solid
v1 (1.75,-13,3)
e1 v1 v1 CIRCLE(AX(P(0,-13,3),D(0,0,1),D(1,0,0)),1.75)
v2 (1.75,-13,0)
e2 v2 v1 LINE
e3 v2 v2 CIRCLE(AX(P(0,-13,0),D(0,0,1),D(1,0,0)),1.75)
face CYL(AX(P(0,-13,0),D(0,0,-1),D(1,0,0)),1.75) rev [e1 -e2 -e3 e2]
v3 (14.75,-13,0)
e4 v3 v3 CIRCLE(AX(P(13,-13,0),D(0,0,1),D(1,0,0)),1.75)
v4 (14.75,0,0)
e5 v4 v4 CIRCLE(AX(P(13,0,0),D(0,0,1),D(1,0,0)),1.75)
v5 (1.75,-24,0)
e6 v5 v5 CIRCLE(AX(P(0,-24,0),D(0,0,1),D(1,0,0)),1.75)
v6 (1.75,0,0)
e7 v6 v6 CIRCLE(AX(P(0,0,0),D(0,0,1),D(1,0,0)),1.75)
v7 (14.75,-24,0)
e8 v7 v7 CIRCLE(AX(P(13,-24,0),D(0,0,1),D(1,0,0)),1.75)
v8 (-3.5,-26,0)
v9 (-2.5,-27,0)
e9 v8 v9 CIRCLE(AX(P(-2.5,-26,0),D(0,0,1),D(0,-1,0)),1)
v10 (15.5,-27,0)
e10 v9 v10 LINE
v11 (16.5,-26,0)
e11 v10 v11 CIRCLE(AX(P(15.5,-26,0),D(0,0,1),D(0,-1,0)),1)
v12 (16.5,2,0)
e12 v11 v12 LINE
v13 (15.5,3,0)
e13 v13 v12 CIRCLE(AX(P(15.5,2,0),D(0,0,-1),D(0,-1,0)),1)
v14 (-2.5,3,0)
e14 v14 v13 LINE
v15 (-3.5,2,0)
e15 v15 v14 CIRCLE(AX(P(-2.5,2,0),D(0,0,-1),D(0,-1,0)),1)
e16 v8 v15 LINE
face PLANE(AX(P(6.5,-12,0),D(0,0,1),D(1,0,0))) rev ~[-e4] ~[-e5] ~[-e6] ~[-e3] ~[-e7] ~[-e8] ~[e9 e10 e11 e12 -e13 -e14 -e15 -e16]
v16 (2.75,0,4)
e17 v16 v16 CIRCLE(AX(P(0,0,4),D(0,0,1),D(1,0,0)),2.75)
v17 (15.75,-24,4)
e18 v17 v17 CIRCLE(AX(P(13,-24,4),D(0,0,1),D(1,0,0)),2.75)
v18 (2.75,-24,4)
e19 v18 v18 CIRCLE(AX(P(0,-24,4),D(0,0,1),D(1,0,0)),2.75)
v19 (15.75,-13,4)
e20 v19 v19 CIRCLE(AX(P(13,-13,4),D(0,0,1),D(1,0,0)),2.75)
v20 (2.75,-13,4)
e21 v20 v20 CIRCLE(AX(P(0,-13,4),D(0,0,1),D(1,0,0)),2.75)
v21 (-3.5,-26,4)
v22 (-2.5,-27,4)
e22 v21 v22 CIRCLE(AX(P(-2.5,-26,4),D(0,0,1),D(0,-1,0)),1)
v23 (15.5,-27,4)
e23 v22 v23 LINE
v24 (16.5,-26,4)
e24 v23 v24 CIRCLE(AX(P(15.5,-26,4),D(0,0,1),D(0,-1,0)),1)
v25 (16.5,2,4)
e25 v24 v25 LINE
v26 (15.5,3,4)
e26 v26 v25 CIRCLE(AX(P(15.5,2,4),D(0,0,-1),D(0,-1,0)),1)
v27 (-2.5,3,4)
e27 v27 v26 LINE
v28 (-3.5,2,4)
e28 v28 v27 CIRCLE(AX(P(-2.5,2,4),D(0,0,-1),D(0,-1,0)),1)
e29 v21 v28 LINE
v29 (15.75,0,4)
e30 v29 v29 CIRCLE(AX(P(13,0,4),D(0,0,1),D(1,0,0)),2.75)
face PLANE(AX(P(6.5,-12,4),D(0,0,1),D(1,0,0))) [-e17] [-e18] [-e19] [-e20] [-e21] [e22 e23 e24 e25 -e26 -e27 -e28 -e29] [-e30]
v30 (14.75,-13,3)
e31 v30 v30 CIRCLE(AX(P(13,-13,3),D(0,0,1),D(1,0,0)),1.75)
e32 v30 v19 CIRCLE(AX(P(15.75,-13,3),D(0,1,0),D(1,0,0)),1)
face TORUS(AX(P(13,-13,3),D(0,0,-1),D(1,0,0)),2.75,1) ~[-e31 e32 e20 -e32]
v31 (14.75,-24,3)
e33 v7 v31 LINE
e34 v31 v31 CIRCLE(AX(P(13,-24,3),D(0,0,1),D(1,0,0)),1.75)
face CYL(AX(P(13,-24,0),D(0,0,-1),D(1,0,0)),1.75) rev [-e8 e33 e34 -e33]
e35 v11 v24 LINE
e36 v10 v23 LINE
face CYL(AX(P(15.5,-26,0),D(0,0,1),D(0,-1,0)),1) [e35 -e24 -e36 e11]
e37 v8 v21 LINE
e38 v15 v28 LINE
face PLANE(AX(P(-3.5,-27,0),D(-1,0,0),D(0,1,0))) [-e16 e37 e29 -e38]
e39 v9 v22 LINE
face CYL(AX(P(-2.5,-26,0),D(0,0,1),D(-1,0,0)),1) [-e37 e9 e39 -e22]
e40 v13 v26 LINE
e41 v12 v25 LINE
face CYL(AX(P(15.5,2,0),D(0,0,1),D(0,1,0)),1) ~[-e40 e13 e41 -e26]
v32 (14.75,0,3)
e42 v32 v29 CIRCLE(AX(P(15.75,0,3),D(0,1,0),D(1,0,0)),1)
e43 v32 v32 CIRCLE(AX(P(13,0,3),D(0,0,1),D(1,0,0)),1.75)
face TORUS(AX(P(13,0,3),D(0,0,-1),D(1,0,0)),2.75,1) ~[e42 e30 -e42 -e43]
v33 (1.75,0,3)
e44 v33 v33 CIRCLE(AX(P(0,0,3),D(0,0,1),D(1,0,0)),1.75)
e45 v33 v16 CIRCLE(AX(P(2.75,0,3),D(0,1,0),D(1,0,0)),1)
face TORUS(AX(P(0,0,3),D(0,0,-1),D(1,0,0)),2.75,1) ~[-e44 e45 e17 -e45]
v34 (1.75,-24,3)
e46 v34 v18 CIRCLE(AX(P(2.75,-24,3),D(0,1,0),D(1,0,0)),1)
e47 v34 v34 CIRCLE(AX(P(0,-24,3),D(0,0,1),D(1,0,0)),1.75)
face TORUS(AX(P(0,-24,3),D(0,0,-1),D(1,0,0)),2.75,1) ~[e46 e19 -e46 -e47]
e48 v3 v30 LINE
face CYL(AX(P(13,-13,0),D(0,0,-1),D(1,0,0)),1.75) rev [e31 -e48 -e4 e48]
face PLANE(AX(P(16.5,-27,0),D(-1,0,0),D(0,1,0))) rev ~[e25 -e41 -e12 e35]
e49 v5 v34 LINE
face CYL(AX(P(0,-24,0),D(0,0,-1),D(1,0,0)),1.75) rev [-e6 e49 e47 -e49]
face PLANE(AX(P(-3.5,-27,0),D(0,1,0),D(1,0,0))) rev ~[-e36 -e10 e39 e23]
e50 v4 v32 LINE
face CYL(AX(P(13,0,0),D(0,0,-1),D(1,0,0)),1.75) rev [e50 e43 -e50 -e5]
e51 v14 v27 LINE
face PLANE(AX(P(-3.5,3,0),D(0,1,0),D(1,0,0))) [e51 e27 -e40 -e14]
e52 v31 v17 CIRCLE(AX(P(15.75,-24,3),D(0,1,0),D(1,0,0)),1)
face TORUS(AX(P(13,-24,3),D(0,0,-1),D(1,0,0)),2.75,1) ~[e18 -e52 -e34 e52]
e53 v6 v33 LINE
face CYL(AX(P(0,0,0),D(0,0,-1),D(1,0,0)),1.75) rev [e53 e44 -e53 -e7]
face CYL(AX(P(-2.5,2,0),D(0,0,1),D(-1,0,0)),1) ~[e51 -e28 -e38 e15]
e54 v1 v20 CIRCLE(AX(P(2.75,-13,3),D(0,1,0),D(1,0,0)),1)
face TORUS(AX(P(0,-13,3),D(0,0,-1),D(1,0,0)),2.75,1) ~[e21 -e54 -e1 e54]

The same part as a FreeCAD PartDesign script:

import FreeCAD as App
import Part
import Sketcher
Q = App.Units.Quantity


def edges_at(feature, points):
    """Names of the edges that pass closest to the given points."""
    edges = feature.Shape.Edges
    near = lambda p: min(range(len(edges)), key=lambda i: edges[i].distToShape(Part.Vertex(*p))[0])
    return sorted({f"Edge{near(p) + 1}" for p in points})


def add_polygon(sketch, points):
    """Adds a closed chain of lines whose ends are joined by coincident constraints."""
    first, n = sketch.GeometryCount, len(points)
    for a, b in zip(points, points[1:] + points[:1]):
        sketch.addGeometry(Part.LineSegment(App.Vector(*a, 0), App.Vector(*b, 0)), False)
    for i in range(n):
        sketch.addConstraint(Sketcher.Constraint("Coincident", first + i, 2, first + (i + 1) % n, 1))

doc = App.newDocument("Part")
params = doc.addObject("Spreadsheet::Sheet", "Params")
for row, (alias, value) in enumerate([
    ("sketch1_diameter", "3.5 mm"),
    ("sketch1_width", "20 mm"),
    ("sketch1_height", "30 mm"),
    ("pad1_length", "4 mm"),
    ("fillet_radius", "1 mm"),
    ("fillet2_radius", "1 mm"),
], start=1):
    params.set(f"A{row}", alias)
    params.set(f"B{row}", "=" + value)
    params.setAlias(f"B{row}", alias)

body = doc.addObject("PartDesign::Body", "Body")

sketch1 = doc.addObject("Sketcher::SketchObject", "Sketch")
body.addObject(sketch1)
sketch1.AttachmentSupport = (doc.XY_Plane, [""])
sketch1.MapMode = "FlatFace"
add_polygon(sketch1, [(-3.5, 3), (-3.5, -27), (16.5, -27), (16.5, 3)])
sketch1.addGeometry(Part.Circle(App.Vector(0, -24, 0), App.Vector(0, 0, 1), 1.8), False)
sketch1.addGeometry(Part.Circle(App.Vector(0, -13, 0), App.Vector(0, 0, 1), 1.8), False)
sketch1.addGeometry(Part.Circle(App.Vector(13, -24, 0), App.Vector(0, 0, 1), 1.8), False)
sketch1.addGeometry(Part.Circle(App.Vector(13, -13, 0), App.Vector(0, 0, 1), 1.8), False)
sketch1.addGeometry(Part.Circle(App.Vector(0, 0, 0), App.Vector(0, 0, 1), 1.8), False)
sketch1.addGeometry(Part.Circle(App.Vector(13, 0, 0), App.Vector(0, 0, 1), 1.8), False)
sketch1.addConstraint(Sketcher.Constraint("Vertical", 0))
sketch1.addConstraint(Sketcher.Constraint("Horizontal", 1))
sketch1.addConstraint(Sketcher.Constraint("Vertical", 2))
sketch1.addConstraint(Sketcher.Constraint("Horizontal", 3))
sketch1.addConstraint(Sketcher.Constraint("Coincident", 8, 3, -1, 1))
sketch1.addConstraint(Sketcher.Constraint("Equal", 4, 5))
sketch1.addConstraint(Sketcher.Constraint("Equal", 5, 6))
sketch1.addConstraint(Sketcher.Constraint("Equal", 6, 7))
sketch1.addConstraint(Sketcher.Constraint("Equal", 7, 8))
sketch1.addConstraint(Sketcher.Constraint("Equal", 8, 9))
sketch1.addConstraint(Sketcher.Constraint("PointOnObject", 4, 3, -2))
sketch1.addConstraint(Sketcher.Constraint("PointOnObject", 5, 3, -2))
sketch1.addConstraint(Sketcher.Constraint("PointOnObject", 9, 3, -1))
sketch1.addConstraint(Sketcher.Constraint("Horizontal", 4, 3, 6, 3))
sketch1.addConstraint(Sketcher.Constraint("Horizontal", 5, 3, 7, 3))
sketch1.addConstraint(Sketcher.Constraint("Vertical", 6, 3, 7, 3))
sketch1.addConstraint(Sketcher.Constraint("Vertical", 7, 3, 9, 3))
sketch1.addConstraint(Sketcher.Constraint("Diameter", 4, Q("3.5 mm")))
sketch1.addConstraint(Sketcher.Constraint("DistanceX", 1, 1, 1, 2, Q("20 mm")))
sketch1.addConstraint(Sketcher.Constraint("DistanceY", 0, 2, 0, 1, Q("30 mm")))
sketch1.addConstraint(Sketcher.Constraint("DistanceY", 4, 3, -1, 1, Q("24 mm")))
sketch1.addConstraint(Sketcher.Constraint("DistanceY", 5, 3, -1, 1, Q("13 mm")))
sketch1.addConstraint(Sketcher.Constraint("DistanceX", -1, 1, 6, 3, Q("13 mm")))
sketch1.addConstraint(Sketcher.Constraint("DistanceY", 0, 2, -1, 1, Q("27 mm")))
sketch1.addConstraint(Sketcher.Constraint("DistanceX", 0, 2, -1, 1, Q("3.5 mm")))
sketch1.setExpression("Constraints[21]", "Params.sketch1_diameter")
sketch1.setExpression("Constraints[22]", "Params.sketch1_width")
sketch1.setExpression("Constraints[23]", "Params.sketch1_height")
pad1 = doc.addObject("PartDesign::Pad", "Pad")
body.addObject(pad1)
pad1.Profile = sketch1
pad1.setExpression("Length", "Params.pad1_length")
doc.recompute()

fillet = doc.addObject("PartDesign::Fillet", "Fillet")
body.addObject(fillet)
fillet.Base = (pad1, edges_at(pad1, [
    (-1.75, 0, 4),
    (11.25, 0, 4),
    (11.25, -13, 4),
    (-1.75, -13, 4),
    (-1.75, -24, 4),
    (11.25, -24, 4),
]))
fillet.setExpression("Radius", "Params.fillet_radius")
doc.recompute()

fillet2 = doc.addObject("PartDesign::Fillet", "Fillet001")
body.addObject(fillet2)
fillet2.Base = (fillet, edges_at(fillet, [
    (-3.5, 3, 2),
    (-3.5, -27, 2),
    (16.5, -27, 2),
    (16.5, 3, 2),
]))
fillet2.setExpression("Radius", "Params.fillet2_radius")

doc.recompute()
